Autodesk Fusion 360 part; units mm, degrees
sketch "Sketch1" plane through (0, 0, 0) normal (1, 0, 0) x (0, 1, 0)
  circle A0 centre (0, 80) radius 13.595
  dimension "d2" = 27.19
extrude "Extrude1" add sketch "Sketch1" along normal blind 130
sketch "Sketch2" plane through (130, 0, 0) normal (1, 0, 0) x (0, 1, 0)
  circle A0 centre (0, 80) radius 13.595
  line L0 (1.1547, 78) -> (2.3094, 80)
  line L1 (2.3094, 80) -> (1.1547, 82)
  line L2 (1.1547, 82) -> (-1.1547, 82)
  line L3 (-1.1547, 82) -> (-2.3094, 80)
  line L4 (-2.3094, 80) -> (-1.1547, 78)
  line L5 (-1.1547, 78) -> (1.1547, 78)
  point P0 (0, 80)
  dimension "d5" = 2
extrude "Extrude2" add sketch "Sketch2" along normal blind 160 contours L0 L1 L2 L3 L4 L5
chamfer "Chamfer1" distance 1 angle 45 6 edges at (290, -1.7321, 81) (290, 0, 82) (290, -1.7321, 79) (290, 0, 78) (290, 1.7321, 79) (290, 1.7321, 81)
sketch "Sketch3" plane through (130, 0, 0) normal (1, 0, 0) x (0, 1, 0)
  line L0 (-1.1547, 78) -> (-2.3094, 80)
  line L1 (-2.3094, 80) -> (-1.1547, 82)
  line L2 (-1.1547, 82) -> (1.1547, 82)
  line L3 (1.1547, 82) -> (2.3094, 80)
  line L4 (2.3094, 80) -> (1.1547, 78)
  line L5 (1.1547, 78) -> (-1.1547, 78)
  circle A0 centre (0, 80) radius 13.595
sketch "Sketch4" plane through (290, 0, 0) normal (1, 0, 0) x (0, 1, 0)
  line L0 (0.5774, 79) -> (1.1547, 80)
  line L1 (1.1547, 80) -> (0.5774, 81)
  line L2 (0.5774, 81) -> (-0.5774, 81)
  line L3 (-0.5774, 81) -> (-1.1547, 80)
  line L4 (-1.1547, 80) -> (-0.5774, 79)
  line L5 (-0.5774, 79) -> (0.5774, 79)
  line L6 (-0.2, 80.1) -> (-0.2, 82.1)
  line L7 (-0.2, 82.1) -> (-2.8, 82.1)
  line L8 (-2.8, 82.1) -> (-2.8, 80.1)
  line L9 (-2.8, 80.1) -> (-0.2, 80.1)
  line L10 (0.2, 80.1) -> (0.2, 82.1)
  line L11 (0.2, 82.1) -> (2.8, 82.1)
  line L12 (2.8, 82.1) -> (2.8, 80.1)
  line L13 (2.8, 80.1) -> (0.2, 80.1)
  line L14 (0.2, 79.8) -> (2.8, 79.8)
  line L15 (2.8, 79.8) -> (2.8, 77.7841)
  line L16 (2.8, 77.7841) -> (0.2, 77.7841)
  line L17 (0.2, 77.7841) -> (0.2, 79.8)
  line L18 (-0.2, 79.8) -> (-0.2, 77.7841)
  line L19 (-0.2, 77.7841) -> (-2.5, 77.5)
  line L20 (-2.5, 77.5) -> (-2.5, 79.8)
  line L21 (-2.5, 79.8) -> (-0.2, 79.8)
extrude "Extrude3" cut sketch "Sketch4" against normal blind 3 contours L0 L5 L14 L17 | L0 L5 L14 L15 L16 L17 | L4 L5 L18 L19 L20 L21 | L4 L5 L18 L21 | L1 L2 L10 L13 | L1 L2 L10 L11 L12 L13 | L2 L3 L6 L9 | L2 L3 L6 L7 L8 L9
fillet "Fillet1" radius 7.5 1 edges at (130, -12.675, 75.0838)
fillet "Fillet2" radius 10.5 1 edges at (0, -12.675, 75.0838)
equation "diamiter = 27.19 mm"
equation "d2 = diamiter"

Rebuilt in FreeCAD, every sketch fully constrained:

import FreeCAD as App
import Part
import Sketcher
from FreeCAD import Vector
Q = App.Units.Quantity


def edges_at(feature, points):
    """Names of the edges that pass closest to the given points."""
    edges = feature.Shape.Edges
    near = lambda p: min(range(len(edges)), key=lambda i: edges[i].distToShape(Part.Vertex(*p))[0])
    return sorted({f"Edge{near(p) + 1}" for p in points})

doc = App.newDocument("Part")
body = doc.addObject("PartDesign::Body", "Body")

# Sketch on YZ plane
sketch1 = doc.addObject("Sketcher::SketchObject", "Sketch")
body.addObject(sketch1)
sketch1.AttachmentSupport = (doc.YZ_Plane, [""])
sketch1.MapMode = "FlatFace"
sketch1.addGeometry(Part.Circle(Vector(0, 80, 0), Vector(0, 0, 1), 14), False)
sketch1.addConstraint(Sketcher.Constraint("PointOnObject", 0, 3, -2))
sketch1.addConstraint(Sketcher.Constraint("Diameter", 0, Q("27.19 mm")))
sketch1.addConstraint(Sketcher.Constraint("DistanceY", -1, 1, 0, 3, Q("80 mm")))
pad1 = doc.addObject("PartDesign::Pad", "Pad")
body.addObject(pad1)
pad1.Profile = sketch1
pad1.Length = 130

# Sketch on YZ plane
sketch2 = doc.addObject("Sketcher::SketchObject", "Sketch001")
body.addObject(sketch2)
sketch2.AttachmentSupport = (doc.YZ_Plane, [""])
sketch2.MapMode = "FlatFace"
sketch2.AttachmentOffset = App.Placement(Vector(0, 0, 130), App.Rotation())
sketch2.addGeometry(Part.LineSegment(Vector(-1.2, 78, 0), Vector(1.2, 78, 0)), False)
sketch2.addGeometry(Part.LineSegment(Vector(1.2, 78, 0), Vector(2.3, 80, 0)), False)
sketch2.addGeometry(Part.LineSegment(Vector(2.3, 80, 0), Vector(1.2, 82, 0)), False)
sketch2.addGeometry(Part.LineSegment(Vector(1.2, 82, 0), Vector(-1.2, 82, 0)), False)
sketch2.addGeometry(Part.LineSegment(Vector(-1.2, 82, 0), Vector(-2.3, 80, 0)), False)
sketch2.addGeometry(Part.LineSegment(Vector(-2.3, 80, 0), Vector(-1.2, 78, 0)), False)
sketch2.addConstraint(Sketcher.Constraint("Coincident", 0, 2, 1, 1))
sketch2.addConstraint(Sketcher.Constraint("Coincident", 1, 2, 2, 1))
sketch2.addConstraint(Sketcher.Constraint("Coincident", 2, 2, 3, 1))
sketch2.addConstraint(Sketcher.Constraint("Coincident", 3, 2, 4, 1))
sketch2.addConstraint(Sketcher.Constraint("Coincident", 4, 2, 5, 1))
sketch2.addConstraint(Sketcher.Constraint("Coincident", 5, 2, 0, 1))
sketch2.addConstraint(Sketcher.Constraint("Horizontal", 0))
sketch2.addConstraint(Sketcher.Constraint("Horizontal", 3))
sketch2.addConstraint(Sketcher.Constraint("Symmetric", 1, 2, 4, 2, -2))
sketch2.addConstraint(Sketcher.Constraint("Parallel", 1, 4))
sketch2.addConstraint(Sketcher.Constraint("Parallel", 2, 5))
sketch2.addConstraint(Sketcher.Constraint("Vertical", 0, 2, 2, 2))
sketch2.addConstraint(Sketcher.Constraint("Vertical", 3, 2, 5, 2))
sketch2.addConstraint(Sketcher.Constraint("DistanceY", 0, 2, 1, 2, Q("2 mm")))
sketch2.addConstraint(Sketcher.Constraint("Angle", 1, Q("60 deg")))
sketch2.addConstraint(Sketcher.Constraint("DistanceY", -1, 1, 0, 2, Q("78 mm")))
sketch2.addConstraint(Sketcher.Constraint("DistanceX", 0, 1, 0, 2, Q("2.3094 mm")))
pad2 = doc.addObject("PartDesign::Pad", "Pad001")
body.addObject(pad2)
pad2.Profile = sketch2
pad2.Length = 160
doc.recompute()

chamfer = doc.addObject("PartDesign::Chamfer", "Chamfer")
body.addObject(chamfer)
chamfer.Base = (pad2, edges_at(pad2, [
    (290, -1.732, 81),
    (290, 0, 82),
    (290, -1.732, 79),
    (290, 0, 78),
    (290, 1.732, 79),
    (290, 1.732, 81),
]))
chamfer.Size = 1

# Sketch on YZ plane
sketch3 = doc.addObject("Sketcher::SketchObject", "Sketch002")
body.addObject(sketch3)
sketch3.AttachmentSupport = (doc.YZ_Plane, [""])
sketch3.MapMode = "FlatFace"
sketch3.AttachmentOffset = App.Placement(Vector(0, 0, 290), App.Rotation())
sketch3.addGeometry(Part.LineSegment(Vector(0.2, 79.8, 0), Vector(0.2, 77.8, 0)), False)
sketch3.addGeometry(Part.LineSegment(Vector(0.2, 77.8, 0), Vector(2.8, 77.8, 0)), False)
sketch3.addGeometry(Part.LineSegment(Vector(2.8, 77.8, 0), Vector(2.8, 79.8, 0)), False)
sketch3.addGeometry(Part.LineSegment(Vector(2.8, 79.8, 0), Vector(0.2, 79.8, 0)), False)
sketch3.addGeometry(Part.LineSegment(Vector(-0.2, 77.8, 0), Vector(-0.2, 79.8, 0)), False)
sketch3.addGeometry(Part.LineSegment(Vector(-0.2, 79.8, 0), Vector(-2.5, 79.8, 0)), False)
sketch3.addGeometry(Part.LineSegment(Vector(-2.5, 79.8, 0), Vector(-2.5, 77.5, 0)), False)
sketch3.addGeometry(Part.LineSegment(Vector(-2.5, 77.5, 0), Vector(-0.2, 77.8, 0)), False)
sketch3.addGeometry(Part.LineSegment(Vector(0.2, 80.1, 0), Vector(2.8, 80.1, 0)), False)
sketch3.addGeometry(Part.LineSegment(Vector(2.8, 80.1, 0), Vector(2.8, 82.1, 0)), False)
sketch3.addGeometry(Part.LineSegment(Vector(2.8, 82.1, 0), Vector(0.2, 82.1, 0)), False)
sketch3.addGeometry(Part.LineSegment(Vector(0.2, 82.1, 0), Vector(0.2, 80.1, 0)), False)
sketch3.addGeometry(Part.LineSegment(Vector(-0.2, 80.1, 0), Vector(-0.2, 82.1, 0)), False)
sketch3.addGeometry(Part.LineSegment(Vector(-0.2, 82.1, 0), Vector(-2.8, 82.1, 0)), False)
sketch3.addGeometry(Part.LineSegment(Vector(-2.8, 82.1, 0), Vector(-2.8, 80.1, 0)), False)
sketch3.addGeometry(Part.LineSegment(Vector(-2.8, 80.1, 0), Vector(-0.2, 80.1, 0)), False)
sketch3.addConstraint(Sketcher.Constraint("Coincident", 0, 2, 1, 1))
sketch3.addConstraint(Sketcher.Constraint("Coincident", 1, 2, 2, 1))
sketch3.addConstraint(Sketcher.Constraint("Coincident", 2, 2, 3, 1))
sketch3.addConstraint(Sketcher.Constraint("Coincident", 3, 2, 0, 1))
sketch3.addConstraint(Sketcher.Constraint("Coincident", 4, 2, 5, 1))
sketch3.addConstraint(Sketcher.Constraint("Coincident", 5, 2, 6, 1))
sketch3.addConstraint(Sketcher.Constraint("Coincident", 6, 2, 7, 1))
sketch3.addConstraint(Sketcher.Constraint("Coincident", 7, 2, 4, 1))
sketch3.addConstraint(Sketcher.Constraint("Coincident", 8, 2, 9, 1))
sketch3.addConstraint(Sketcher.Constraint("Coincident", 9, 2, 10, 1))
sketch3.addConstraint(Sketcher.Constraint("Coincident", 10, 2, 11, 1))
sketch3.addConstraint(Sketcher.Constraint("Coincident", 11, 2, 8, 1))
sketch3.addConstraint(Sketcher.Constraint("Coincident", 12, 2, 13, 1))
sketch3.addConstraint(Sketcher.Constraint("Coincident", 13, 2, 14, 1))
sketch3.addConstraint(Sketcher.Constraint("Coincident", 14, 2, 15, 1))
sketch3.addConstraint(Sketcher.Constraint("Coincident", 15, 2, 12, 1))
sketch3.addConstraint(Sketcher.Constraint("Vertical", 0))
sketch3.addConstraint(Sketcher.Constraint("Horizontal", 1))
sketch3.addConstraint(Sketcher.Constraint("Vertical", 2))
sketch3.addConstraint(Sketcher.Constraint("Horizontal", 3))
sketch3.addConstraint(Sketcher.Constraint("Vertical", 4))
sketch3.addConstraint(Sketcher.Constraint("Horizontal", 5))
sketch3.addConstraint(Sketcher.Constraint("Vertical", 6))
sketch3.addConstraint(Sketcher.Constraint("Horizontal", 8))
sketch3.addConstraint(Sketcher.Constraint("Vertical", 9))
sketch3.addConstraint(Sketcher.Constraint("Horizontal", 10))
sketch3.addConstraint(Sketcher.Constraint("Vertical", 11))
sketch3.addConstraint(Sketcher.Constraint("Vertical", 12))
sketch3.addConstraint(Sketcher.Constraint("Horizontal", 13))
sketch3.addConstraint(Sketcher.Constraint("Vertical", 14))
sketch3.addConstraint(Sketcher.Constraint("Horizontal", 15))
sketch3.addConstraint(Sketcher.Constraint("Symmetric", 3, 2, 4, 2, -2))
sketch3.addConstraint(Sketcher.Constraint("Symmetric", 10, 2, 12, 2, -2))
sketch3.addConstraint(Sketcher.Constraint("Symmetric", 8, 2, 14, 2, -2))
sketch3.addConstraint(Sketcher.Constraint("Horizontal", 1, 2, 7, 2))
sketch3.addConstraint(Sketcher.Constraint("Vertical", 2, 2, 8, 2))
sketch3.addConstraint(Sketcher.Constraint("Vertical", 3, 2, 10, 2))
sketch3.addConstraint(Sketcher.Constraint("Equal", 5, 6))
sketch3.addConstraint(Sketcher.Constraint("DistanceY", 9, 1, 9, 2, Q("2 mm")))
sketch3.addConstraint(Sketcher.Constraint("DistanceX", 1, 1, 1, 2, Q("2.6 mm")))
sketch3.addConstraint(Sketcher.Constraint("DistanceX", 5, 2, 5, 1, Q("2.3 mm")))
sketch3.addConstraint(Sketcher.Constraint("DistanceX", 4, 2, 2, 2, Q("3 mm")))
sketch3.addConstraint(Sketcher.Constraint("DistanceY", -1, 1, 2, 2, Q("79.8 mm")))
sketch3.addConstraint(Sketcher.Constraint("DistanceY", -1, 1, 8, 2, Q("80.1 mm")))
sketch3.addConstraint(Sketcher.Constraint("DistanceY", 0, 2, 0, 1, Q("2.016 mm")))
pocket1 = doc.addObject("PartDesign::Pocket", "Pocket")
body.addObject(pocket1)
pocket1.Profile = sketch3
pocket1.Length = 3
doc.recompute()

fillet = doc.addObject("PartDesign::Fillet", "Fillet")
body.addObject(fillet)
fillet.Base = (pocket1, edges_at(pocket1, [(130, -12.675, 75.084)]))
fillet.Radius = 7.5
doc.recompute()

fillet2 = doc.addObject("PartDesign::Fillet", "Fillet001")
body.addObject(fillet2)
fillet2.Base = (fillet, edges_at(fillet, [(0, -12.675, 75.084)]))
fillet2.Radius = 10.5

doc.recompute()
